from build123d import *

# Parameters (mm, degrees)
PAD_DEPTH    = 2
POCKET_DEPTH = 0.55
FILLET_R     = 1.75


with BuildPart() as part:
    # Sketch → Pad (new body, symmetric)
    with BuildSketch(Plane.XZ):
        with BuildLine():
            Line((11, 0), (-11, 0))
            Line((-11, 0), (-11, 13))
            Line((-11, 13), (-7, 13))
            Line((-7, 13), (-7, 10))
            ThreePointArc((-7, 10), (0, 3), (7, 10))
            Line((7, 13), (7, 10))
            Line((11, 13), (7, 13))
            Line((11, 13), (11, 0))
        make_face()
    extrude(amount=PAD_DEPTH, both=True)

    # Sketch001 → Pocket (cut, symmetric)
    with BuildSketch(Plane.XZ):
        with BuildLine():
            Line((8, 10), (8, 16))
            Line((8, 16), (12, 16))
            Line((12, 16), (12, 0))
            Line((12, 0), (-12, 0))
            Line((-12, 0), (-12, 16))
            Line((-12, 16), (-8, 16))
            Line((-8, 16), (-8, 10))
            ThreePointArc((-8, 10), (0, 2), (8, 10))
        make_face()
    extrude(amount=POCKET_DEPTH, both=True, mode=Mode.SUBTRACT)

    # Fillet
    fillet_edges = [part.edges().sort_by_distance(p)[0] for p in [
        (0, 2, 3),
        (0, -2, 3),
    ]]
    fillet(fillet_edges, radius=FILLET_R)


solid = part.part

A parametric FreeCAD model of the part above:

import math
import FreeCAD as App
import Part
import Sketcher
Q = App.Units.Quantity


def edges_at(feature, points):
    """Names of the edges that pass closest to the given points."""
    edges = feature.Shape.Edges
    near = lambda p: min(range(len(edges)), key=lambda i: edges[i].distToShape(Part.Vertex(*p))[0])
    return sorted({f"Edge{near(p) + 1}" for p in points})

doc = App.newDocument("Part")
body = doc.addObject("PartDesign::Body", "Body")

sketch1 = body.newObject("Sketcher::SketchObject", "Sketch")
sketch1.AttachmentSupport = (doc.getObject("XZ_Plane"), [""])
sketch1.MapMode = "FlatFace"
sketch1.addGeometry([
    Part.LineSegment(App.Vector(-11, 0, 0), App.Vector(11, 0, 0)),
    Part.LineSegment(App.Vector(11, 0, 0), App.Vector(11, 13, 0)),
    Part.LineSegment(App.Vector(11, 13, 0), App.Vector(7, 13, 0)),
    Part.LineSegment(App.Vector(7, 13, 0), App.Vector(7, 10, 0)),
    Part.ArcOfCircle(Part.Circle(App.Vector(0, 10, 0), App.Vector(0, 0, 1), 7), math.radians(180), math.radians(360)),
    Part.LineSegment(App.Vector(-7, 10, 0), App.Vector(-7, 13, 0)),
    Part.LineSegment(App.Vector(-7, 13, 0), App.Vector(-11, 13, 0)),
    Part.LineSegment(App.Vector(-11, 13, 0), App.Vector(-11, 0, 0)),
], False)
sketch1.addConstraint([
    Sketcher.Constraint("Coincident", 0, 2, 1, 1),
    Sketcher.Constraint("Coincident", 1, 2, 2, 1),
    Sketcher.Constraint("Coincident", 2, 2, 3, 1),
    Sketcher.Constraint("Tangent", 3, 2, 4, 2),
    Sketcher.Constraint("Tangent", 4, 1, 5, 1),
    Sketcher.Constraint("Coincident", 5, 2, 6, 1),
    Sketcher.Constraint("Coincident", 6, 2, 7, 1),
    Sketcher.Constraint("Coincident", 7, 2, 0, 1),
    Sketcher.Constraint("Horizontal", 0),
    Sketcher.Constraint("Vertical", 1),
    Sketcher.Constraint("Horizontal", 2),
    Sketcher.Constraint("Vertical", 3),
    Sketcher.Constraint("Vertical", 5),
    Sketcher.Constraint("Horizontal", 6),
    Sketcher.Constraint("Vertical", 7),
    Sketcher.Constraint("Symmetric", 0, 2, 7, 2, -1, 1),
    Sketcher.Constraint("Symmetric", 2, 2, 5, 2, -2),
    Sketcher.Constraint("Radius", 4, Q("7 mm")),
    Sketcher.Constraint("DistanceX", 0, 1, 0, 2, Q("22 mm")),
    Sketcher.Constraint("DistanceY", 1, 1, 1, 2, Q("13 mm")),
    Sketcher.Constraint("DistanceY", 3, 2, 3, 1, Q("3 mm")),
])
pad1 = body.newObject("PartDesign::Pad", "Pad")
pad1.Profile = sketch1
pad1.Length = 4
pad1.Midplane = True

sketch2 = body.newObject("Sketcher::SketchObject", "Sketch001")
sketch2.AttachmentSupport = (doc.getObject("XZ_Plane"), [""])
sketch2.MapMode = "FlatFace"
sketch2.addGeometry([
    Part.LineSegment(App.Vector(8, 16, 0), App.Vector(8, 10, 0)),
    Part.ArcOfCircle(Part.Circle(App.Vector(0, 10, 0), App.Vector(0, 0, 1), 8), math.radians(180), math.radians(360)),
    Part.LineSegment(App.Vector(-8, 10, 0), App.Vector(-8, 16, 0)),
    Part.LineSegment(App.Vector(-8, 16, 0), App.Vector(-12, 16, 0)),
    Part.LineSegment(App.Vector(-12, 16, 0), App.Vector(-12, 0, 0)),
    Part.LineSegment(App.Vector(-12, 0, 0), App.Vector(12, 0, 0)),
    Part.LineSegment(App.Vector(12, 0, 0), App.Vector(12, 16, 0)),
    Part.LineSegment(App.Vector(12, 16, 0), App.Vector(8, 16, 0)),
], False)
sketch2.addConstraint([
    Sketcher.Constraint("Tangent", 0, 2, 1, 2),
    Sketcher.Constraint("Tangent", 1, 1, 2, 1),
    Sketcher.Constraint("Coincident", 2, 2, 3, 1),
    Sketcher.Constraint("Coincident", 3, 2, 4, 1),
    Sketcher.Constraint("Coincident", 4, 2, 5, 1),
    Sketcher.Constraint("Coincident", 5, 2, 6, 1),
    Sketcher.Constraint("Coincident", 6, 2, 7, 1),
    Sketcher.Constraint("Coincident", 7, 2, 0, 1),
    Sketcher.Constraint("Vertical", 0),
    Sketcher.Constraint("Vertical", 2),
    Sketcher.Constraint("Horizontal", 3),
    Sketcher.Constraint("Vertical", 4),
    Sketcher.Constraint("Horizontal", 5),
    Sketcher.Constraint("Vertical", 6),
    Sketcher.Constraint("Horizontal", 7),
    Sketcher.Constraint("Symmetric", 4, 2, 5, 2, -1, 1),
    Sketcher.Constraint("Symmetric", 2, 2, 7, 2, -2),
    Sketcher.Constraint("Radius", 1, Q("8 mm")),
    Sketcher.Constraint("DistanceX", 3, 2, 3, 1, Q("4 mm")),
    Sketcher.Constraint("DistanceY", 0, 2, 0, 1, Q("6 mm")),
    Sketcher.Constraint("DistanceY", 4, 2, 4, 1, Q("16 mm")),
])
pocket1 = body.newObject("PartDesign::Pocket", "Pocket")
pocket1.Profile = sketch2
pocket1.Length = 1.1
pocket1.Midplane = True
doc.recompute()

fillet = body.newObject("PartDesign::Fillet", "Fillet")
fillet.Base = (pocket1, edges_at(pocket1, [(0, 2, 3), (0, -2, 3)]))
fillet.Radius = 1.75

doc.recompute()
